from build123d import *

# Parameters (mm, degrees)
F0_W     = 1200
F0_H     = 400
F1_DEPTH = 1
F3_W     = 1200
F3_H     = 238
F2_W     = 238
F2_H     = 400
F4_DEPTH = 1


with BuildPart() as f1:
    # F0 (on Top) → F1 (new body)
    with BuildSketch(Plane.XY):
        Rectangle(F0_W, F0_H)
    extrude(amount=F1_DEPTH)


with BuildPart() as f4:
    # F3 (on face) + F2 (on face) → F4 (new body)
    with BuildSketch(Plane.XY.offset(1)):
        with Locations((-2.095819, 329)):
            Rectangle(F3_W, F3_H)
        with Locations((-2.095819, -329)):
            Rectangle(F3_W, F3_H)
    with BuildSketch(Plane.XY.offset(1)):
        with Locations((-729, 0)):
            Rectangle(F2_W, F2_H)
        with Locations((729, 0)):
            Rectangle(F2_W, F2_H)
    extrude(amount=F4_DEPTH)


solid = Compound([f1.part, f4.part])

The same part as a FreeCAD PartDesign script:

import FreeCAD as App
import Part
import Sketcher

V = App.Vector

doc = App.newDocument("Part")
body = doc.addObject("PartDesign::Body", "Body")

# Sketch on XY plane
sketch1 = body.newObject("Sketcher::SketchObject", "Sketch")
sketch1.AttachmentSupport = (doc.getObject("XY_Plane"), [""])
sketch1.MapMode = "FlatFace"
sketch1.addGeometry(Part.LineSegment(V(-600, 200, 0), V(-600, -200, 0)), False)
sketch1.addGeometry(Part.LineSegment(V(-600, -200, 0), V(600, -200, 0)), False)
sketch1.addGeometry(Part.LineSegment(V(600, -200, 0), V(600, 200, 0)), False)
sketch1.addGeometry(Part.LineSegment(V(600, 200, 0), V(-600, 200, 0)), False)
sketch1.addConstraint(Sketcher.Constraint("Coincident", 0, 2, 1, 1))
sketch1.addConstraint(Sketcher.Constraint("Coincident", 1, 2, 2, 1))
sketch1.addConstraint(Sketcher.Constraint("Coincident", 2, 2, 3, 1))
sketch1.addConstraint(Sketcher.Constraint("Coincident", 3, 2, 0, 1))
sketch1.addConstraint(Sketcher.Constraint("Vertical", 0))
sketch1.addConstraint(Sketcher.Constraint("Horizontal", 1))
sketch1.addConstraint(Sketcher.Constraint("Vertical", 2))
sketch1.addConstraint(Sketcher.Constraint("Horizontal", 3))
sketch1.addConstraint(Sketcher.Constraint("Symmetric", 0, 2, 2, 2, -1, 1))
sketch1.addConstraint(Sketcher.Constraint("DistanceX", 1, 1, 1, 2, 1200.0))
sketch1.addConstraint(Sketcher.Constraint("DistanceY", 0, 2, 0, 1, 400.0))
pad1 = body.newObject("PartDesign::Pad", "Pad")
pad1.Profile = sketch1
pad1.Length = 1
body2 = doc.addObject("PartDesign::Body", "Body001")
body2.AllowCompound = True

# Sketch on XY plane
sketch2 = body2.newObject("Sketcher::SketchObject", "Sketch001")
sketch2.AttachmentSupport = (doc.getObject("XY_Plane001"), [""])
sketch2.MapMode = "FlatFace"
sketch2.AttachmentOffset = App.Placement(V(0, 0, 1), App.Rotation())
sketch2.addGeometry(Part.LineSegment(V(-602, 448, 0), V(-602, 210, 0)), False)
sketch2.addGeometry(Part.LineSegment(V(-602, 210, 0), V(598, 210, 0)), False)
sketch2.addGeometry(Part.LineSegment(V(598, 210, 0), V(598, 448, 0)), False)
sketch2.addGeometry(Part.LineSegment(V(598, 448, 0), V(-602, 448, 0)), False)
sketch2.addGeometry(Part.LineSegment(V(-602, -210, 0), V(-602, -448, 0)), False)
sketch2.addGeometry(Part.LineSegment(V(-602, -448, 0), V(598, -448, 0)), False)
sketch2.addGeometry(Part.LineSegment(V(598, -448, 0), V(598, -210, 0)), False)
sketch2.addGeometry(Part.LineSegment(V(598, -210, 0), V(-602, -210, 0)), False)
sketch2.addGeometry(Part.LineSegment(V(-848, 200, 0), V(-848, -200, 0)), False)
sketch2.addGeometry(Part.LineSegment(V(-848, -200, 0), V(-610, -200, 0)), False)
sketch2.addGeometry(Part.LineSegment(V(-610, -200, 0), V(-610, 200, 0)), False)
sketch2.addGeometry(Part.LineSegment(V(-610, 200, 0), V(-848, 200, 0)), False)
sketch2.addGeometry(Part.LineSegment(V(610, 200, 0), V(610, -200, 0)), False)
sketch2.addGeometry(Part.LineSegment(V(610, -200, 0), V(848, -200, 0)), False)
sketch2.addGeometry(Part.LineSegment(V(848, -200, 0), V(848, 200, 0)), False)
sketch2.addGeometry(Part.LineSegment(V(848, 200, 0), V(610, 200, 0)), False)
sketch2.addConstraint(Sketcher.Constraint("Coincident", 0, 2, 1, 1))
sketch2.addConstraint(Sketcher.Constraint("Coincident", 1, 2, 2, 1))
sketch2.addConstraint(Sketcher.Constraint("Coincident", 2, 2, 3, 1))
sketch2.addConstraint(Sketcher.Constraint("Coincident", 3, 2, 0, 1))
sketch2.addConstraint(Sketcher.Constraint("Coincident", 4, 2, 5, 1))
sketch2.addConstraint(Sketcher.Constraint("Coincident", 5, 2, 6, 1))
sketch2.addConstraint(Sketcher.Constraint("Coincident", 6, 2, 7, 1))
sketch2.addConstraint(Sketcher.Constraint("Coincident", 7, 2, 4, 1))
sketch2.addConstraint(Sketcher.Constraint("Coincident", 8, 2, 9, 1))
sketch2.addConstraint(Sketcher.Constraint("Coincident", 9, 2, 10, 1))
sketch2.addConstraint(Sketcher.Constraint("Coincident", 10, 2, 11, 1))
sketch2.addConstraint(Sketcher.Constraint("Coincident", 11, 2, 8, 1))
sketch2.addConstraint(Sketcher.Constraint("Coincident", 12, 2, 13, 1))
sketch2.addConstraint(Sketcher.Constraint("Coincident", 13, 2, 14, 1))
sketch2.addConstraint(Sketcher.Constraint("Coincident", 14, 2, 15, 1))
sketch2.addConstraint(Sketcher.Constraint("Coincident", 15, 2, 12, 1))
sketch2.addConstraint(Sketcher.Constraint("Vertical", 0))
sketch2.addConstraint(Sketcher.Constraint("Horizontal", 1))
sketch2.addConstraint(Sketcher.Constraint("Vertical", 2))
sketch2.addConstraint(Sketcher.Constraint("Horizontal", 3))
sketch2.addConstraint(Sketcher.Constraint("Vertical", 4))
sketch2.addConstraint(Sketcher.Constraint("Horizontal", 5))
sketch2.addConstraint(Sketcher.Constraint("Vertical", 6))
sketch2.addConstraint(Sketcher.Constraint("Horizontal", 7))
sketch2.addConstraint(Sketcher.Constraint("Vertical", 8))
sketch2.addConstraint(Sketcher.Constraint("Horizontal", 9))
sketch2.addConstraint(Sketcher.Constraint("Vertical", 10))
sketch2.addConstraint(Sketcher.Constraint("Horizontal", 11))
sketch2.addConstraint(Sketcher.Constraint("Vertical", 12))
sketch2.addConstraint(Sketcher.Constraint("Horizontal", 13))
sketch2.addConstraint(Sketcher.Constraint("Vertical", 14))
sketch2.addConstraint(Sketcher.Constraint("Horizontal", 15))
sketch2.addConstraint(Sketcher.Constraint("Symmetric", 10, 2, 12, 2, -1, 1))
sketch2.addConstraint(Sketcher.Constraint("Symmetric", 8, 2, 14, 2, -1, 1))
sketch2.addConstraint(Sketcher.Constraint("Symmetric", 3, 2, 4, 2, -1))
sketch2.addConstraint(Sketcher.Constraint("Symmetric", 1, 2, 6, 2, -1))
sketch2.addConstraint(Sketcher.Constraint("Horizontal", 9, 2, 12, 2))
sketch2.addConstraint(Sketcher.Constraint("Equal", 15, 0))
sketch2.addConstraint(Sketcher.Constraint("DistanceX", 1, 1, 1, 2, 1200.0))
sketch2.addConstraint(Sketcher.Constraint("DistanceX", 9, 1, 9, 2, 238.0))
sketch2.addConstraint(Sketcher.Constraint("DistanceY", 8, 2, 8, 1, 400.0))
sketch2.addConstraint(Sketcher.Constraint("DistanceY", -1, 1, 0, 2, 210.0))
sketch2.addConstraint(Sketcher.Constraint("DistanceX", 8, 2, -1, 1, 848.0))
sketch2.addConstraint(Sketcher.Constraint("DistanceX", 0, 2, -1, 1, 602.095819))
pad2 = body2.newObject("PartDesign::Pad", "Pad001")
pad2.Profile = sketch2
pad2.Length = 1

doc.recompute()
